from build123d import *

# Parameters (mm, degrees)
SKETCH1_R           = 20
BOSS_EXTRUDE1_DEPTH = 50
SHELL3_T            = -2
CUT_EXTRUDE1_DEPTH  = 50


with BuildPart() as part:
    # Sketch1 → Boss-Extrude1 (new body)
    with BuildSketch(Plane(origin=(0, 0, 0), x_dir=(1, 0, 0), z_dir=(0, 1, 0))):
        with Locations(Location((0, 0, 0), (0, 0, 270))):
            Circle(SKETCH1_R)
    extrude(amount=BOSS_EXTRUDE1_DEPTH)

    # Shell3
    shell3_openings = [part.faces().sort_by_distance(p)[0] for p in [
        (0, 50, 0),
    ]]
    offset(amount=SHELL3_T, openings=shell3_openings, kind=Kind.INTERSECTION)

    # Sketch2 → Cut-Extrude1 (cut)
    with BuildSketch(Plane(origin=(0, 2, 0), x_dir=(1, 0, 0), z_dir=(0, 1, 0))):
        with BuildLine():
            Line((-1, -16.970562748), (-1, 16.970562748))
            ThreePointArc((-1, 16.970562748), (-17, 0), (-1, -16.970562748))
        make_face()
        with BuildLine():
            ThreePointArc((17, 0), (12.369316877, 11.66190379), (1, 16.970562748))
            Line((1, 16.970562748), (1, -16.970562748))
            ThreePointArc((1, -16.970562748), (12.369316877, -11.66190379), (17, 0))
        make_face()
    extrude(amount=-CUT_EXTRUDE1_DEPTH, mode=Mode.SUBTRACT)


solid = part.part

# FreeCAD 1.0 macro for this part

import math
import FreeCAD as App
import Part
import Sketcher

V = App.Vector


def faces_at(feature, points):
    """Names of the faces that lie closest to the given points."""
    faces = feature.Shape.Faces
    near = lambda p: min(range(len(faces)), key=lambda i: faces[i].distToShape(Part.Vertex(*p))[0])
    return sorted({f"Face{near(p) + 1}" for p in points})

doc = App.newDocument("Part")
body = doc.addObject("PartDesign::Body", "Body")

# Sketch on XZ plane
sketch1 = body.newObject("Sketcher::SketchObject", "Sketch")
sketch1.AttachmentSupport = (doc.getObject("XZ_Plane"), [""])
sketch1.MapMode = "FlatFace"
sketch1.addGeometry(Part.Circle(V(0, 0, 0), V(0, 0, 1), 20), False)
sketch1.addConstraint([
    Sketcher.Constraint("Coincident", 0, 3, -1, 1),
    Sketcher.Constraint("Diameter", 0, 40.0),
])
pad1 = body.newObject("PartDesign::Pad", "Pad")
pad1.Profile = sketch1
pad1.Length = 50
pad1.Reversed = True
doc.recompute()

thickness = body.newObject("PartDesign::Thickness", "Thickness")
thickness.Base = (pad1, faces_at(pad1, [(0, 50, 0)]))
thickness.Value = 2
thickness.Reversed = True
thickness.Join = "Intersection"

# Sketch on XZ plane
sketch2 = body.newObject("Sketcher::SketchObject", "Sketch001")
sketch2.AttachmentSupport = (doc.getObject("XZ_Plane"), [""])
sketch2.MapMode = "FlatFace"
sketch2.AttachmentOffset = App.Placement(V(0, 0, -2), App.Rotation())
sketch2.addGeometry([
    Part.LineSegment(V(-1, 16.970563, 0), V(-1, -16.970563, 0)),  # 0
    Part.ArcOfCircle(Part.Circle(V(0, 0, 0), V(0, 0, 1), 17), math.radians(93.372287), math.radians(266.627713)),  # 1
    Part.ArcOfCircle(Part.Circle(V(0, 0, 0), V(0, 0, 1), 17), math.radians(-86.627713), math.radians(0)),  # 2
    Part.LineSegment(V(1, -16.970563, 0), V(1, 16.970563, 0)),  # 3
    Part.ArcOfCircle(Part.Circle(V(0, 0, 0), V(0, 0, 1), 17), math.radians(0), math.radians(86.627713)),  # 4
], False)
sketch2.addConstraint([
    Sketcher.Constraint("Coincident", 0, 1, 1, 1),
    Sketcher.Constraint("Coincident", 1, 2, 0, 2),
    Sketcher.Constraint("Coincident", 2, 1, 3, 1),
    Sketcher.Constraint("Coincident", 3, 2, 4, 2),
    Sketcher.Constraint("Tangent", 4, 1, 2, 2),
    Sketcher.Constraint("Vertical", 0),
    Sketcher.Constraint("Vertical", 3),
    Sketcher.Constraint("Coincident", 1, 3, -1, 1),
    Sketcher.Constraint("Coincident", 2, 3, -1, 1),
    Sketcher.Constraint("Equal", 1, 2),
    Sketcher.Constraint("Equal", 2, 4),
    Sketcher.Constraint("PointOnObject", 4, 1, -1),
    Sketcher.Constraint("Horizontal", 1, 2, 2, 1),
    Sketcher.Constraint("Radius", 1, 17.0),
    Sketcher.Constraint("DistanceX", 0, 1, -1, 1, 1.0),
])
pocket1 = body.newObject("PartDesign::Pocket", "Pocket")
pocket1.Profile = sketch2
pocket1.Length = 50
pocket1.Reversed = True

doc.recompute()
